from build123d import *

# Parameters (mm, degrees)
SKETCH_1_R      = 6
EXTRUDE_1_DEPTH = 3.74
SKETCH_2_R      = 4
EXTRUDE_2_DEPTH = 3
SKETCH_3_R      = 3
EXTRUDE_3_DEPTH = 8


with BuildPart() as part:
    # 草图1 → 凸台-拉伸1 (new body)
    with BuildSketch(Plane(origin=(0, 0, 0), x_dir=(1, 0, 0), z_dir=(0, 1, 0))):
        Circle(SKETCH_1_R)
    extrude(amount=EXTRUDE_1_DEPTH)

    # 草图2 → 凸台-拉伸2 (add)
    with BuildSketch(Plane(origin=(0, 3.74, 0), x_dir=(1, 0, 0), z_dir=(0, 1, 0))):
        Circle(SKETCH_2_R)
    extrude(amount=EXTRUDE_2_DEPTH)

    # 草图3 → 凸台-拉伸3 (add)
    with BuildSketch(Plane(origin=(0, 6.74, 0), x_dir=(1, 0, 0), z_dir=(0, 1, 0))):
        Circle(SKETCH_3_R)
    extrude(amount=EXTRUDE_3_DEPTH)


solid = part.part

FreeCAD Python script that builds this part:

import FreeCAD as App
import Part
import Sketcher

V = App.Vector

doc = App.newDocument("Part")
body = doc.addObject("PartDesign::Body", "Body")

# Sketch on XZ plane
sketch1 = body.newObject("Sketcher::SketchObject", "Sketch")
sketch1.AttachmentSupport = (doc.getObject("XZ_Plane"), [""])
sketch1.MapMode = "FlatFace"
sketch1.addGeometry(Part.Circle(V(0, 0, 0), V(0, 0, 1), 6), False)
sketch1.addConstraint(Sketcher.Constraint("Coincident", 0, 3, -1, 1))
sketch1.addConstraint(Sketcher.Constraint("Diameter", 0, 12.0))
pad1 = body.newObject("PartDesign::Pad", "Pad")
pad1.Profile = sketch1
pad1.Length = 3.74
pad1.Reversed = True

# Sketch on XZ plane
sketch2 = body.newObject("Sketcher::SketchObject", "Sketch001")
sketch2.AttachmentSupport = (doc.getObject("XZ_Plane"), [""])
sketch2.MapMode = "FlatFace"
sketch2.AttachmentOffset = App.Placement(V(0, 0, -3.74), App.Rotation())
sketch2.addGeometry(Part.Circle(V(0, 0, 0), V(0, 0, 1), 4), False)
sketch2.addConstraint(Sketcher.Constraint("Coincident", 0, 3, -1, 1))
sketch2.addConstraint(Sketcher.Constraint("Diameter", 0, 8.0))
pad2 = body.newObject("PartDesign::Pad", "Pad001")
pad2.Profile = sketch2
pad2.Length = 3
pad2.Reversed = True

# Sketch on XZ plane
sketch3 = body.newObject("Sketcher::SketchObject", "Sketch002")
sketch3.AttachmentSupport = (doc.getObject("XZ_Plane"), [""])
sketch3.MapMode = "FlatFace"
sketch3.AttachmentOffset = App.Placement(V(0, 0, -6.74), App.Rotation())
sketch3.addGeometry(Part.Circle(V(0, 0, 0), V(0, 0, 1), 3), False)
sketch3.addConstraint(Sketcher.Constraint("Coincident", 0, 3, -1, 1))
sketch3.addConstraint(Sketcher.Constraint("Diameter", 0, 6.0))
pad3 = body.newObject("PartDesign::Pad", "Pad002")
pad3.Profile = sketch3
pad3.Length = 8
pad3.Reversed = True

doc.recompute()
